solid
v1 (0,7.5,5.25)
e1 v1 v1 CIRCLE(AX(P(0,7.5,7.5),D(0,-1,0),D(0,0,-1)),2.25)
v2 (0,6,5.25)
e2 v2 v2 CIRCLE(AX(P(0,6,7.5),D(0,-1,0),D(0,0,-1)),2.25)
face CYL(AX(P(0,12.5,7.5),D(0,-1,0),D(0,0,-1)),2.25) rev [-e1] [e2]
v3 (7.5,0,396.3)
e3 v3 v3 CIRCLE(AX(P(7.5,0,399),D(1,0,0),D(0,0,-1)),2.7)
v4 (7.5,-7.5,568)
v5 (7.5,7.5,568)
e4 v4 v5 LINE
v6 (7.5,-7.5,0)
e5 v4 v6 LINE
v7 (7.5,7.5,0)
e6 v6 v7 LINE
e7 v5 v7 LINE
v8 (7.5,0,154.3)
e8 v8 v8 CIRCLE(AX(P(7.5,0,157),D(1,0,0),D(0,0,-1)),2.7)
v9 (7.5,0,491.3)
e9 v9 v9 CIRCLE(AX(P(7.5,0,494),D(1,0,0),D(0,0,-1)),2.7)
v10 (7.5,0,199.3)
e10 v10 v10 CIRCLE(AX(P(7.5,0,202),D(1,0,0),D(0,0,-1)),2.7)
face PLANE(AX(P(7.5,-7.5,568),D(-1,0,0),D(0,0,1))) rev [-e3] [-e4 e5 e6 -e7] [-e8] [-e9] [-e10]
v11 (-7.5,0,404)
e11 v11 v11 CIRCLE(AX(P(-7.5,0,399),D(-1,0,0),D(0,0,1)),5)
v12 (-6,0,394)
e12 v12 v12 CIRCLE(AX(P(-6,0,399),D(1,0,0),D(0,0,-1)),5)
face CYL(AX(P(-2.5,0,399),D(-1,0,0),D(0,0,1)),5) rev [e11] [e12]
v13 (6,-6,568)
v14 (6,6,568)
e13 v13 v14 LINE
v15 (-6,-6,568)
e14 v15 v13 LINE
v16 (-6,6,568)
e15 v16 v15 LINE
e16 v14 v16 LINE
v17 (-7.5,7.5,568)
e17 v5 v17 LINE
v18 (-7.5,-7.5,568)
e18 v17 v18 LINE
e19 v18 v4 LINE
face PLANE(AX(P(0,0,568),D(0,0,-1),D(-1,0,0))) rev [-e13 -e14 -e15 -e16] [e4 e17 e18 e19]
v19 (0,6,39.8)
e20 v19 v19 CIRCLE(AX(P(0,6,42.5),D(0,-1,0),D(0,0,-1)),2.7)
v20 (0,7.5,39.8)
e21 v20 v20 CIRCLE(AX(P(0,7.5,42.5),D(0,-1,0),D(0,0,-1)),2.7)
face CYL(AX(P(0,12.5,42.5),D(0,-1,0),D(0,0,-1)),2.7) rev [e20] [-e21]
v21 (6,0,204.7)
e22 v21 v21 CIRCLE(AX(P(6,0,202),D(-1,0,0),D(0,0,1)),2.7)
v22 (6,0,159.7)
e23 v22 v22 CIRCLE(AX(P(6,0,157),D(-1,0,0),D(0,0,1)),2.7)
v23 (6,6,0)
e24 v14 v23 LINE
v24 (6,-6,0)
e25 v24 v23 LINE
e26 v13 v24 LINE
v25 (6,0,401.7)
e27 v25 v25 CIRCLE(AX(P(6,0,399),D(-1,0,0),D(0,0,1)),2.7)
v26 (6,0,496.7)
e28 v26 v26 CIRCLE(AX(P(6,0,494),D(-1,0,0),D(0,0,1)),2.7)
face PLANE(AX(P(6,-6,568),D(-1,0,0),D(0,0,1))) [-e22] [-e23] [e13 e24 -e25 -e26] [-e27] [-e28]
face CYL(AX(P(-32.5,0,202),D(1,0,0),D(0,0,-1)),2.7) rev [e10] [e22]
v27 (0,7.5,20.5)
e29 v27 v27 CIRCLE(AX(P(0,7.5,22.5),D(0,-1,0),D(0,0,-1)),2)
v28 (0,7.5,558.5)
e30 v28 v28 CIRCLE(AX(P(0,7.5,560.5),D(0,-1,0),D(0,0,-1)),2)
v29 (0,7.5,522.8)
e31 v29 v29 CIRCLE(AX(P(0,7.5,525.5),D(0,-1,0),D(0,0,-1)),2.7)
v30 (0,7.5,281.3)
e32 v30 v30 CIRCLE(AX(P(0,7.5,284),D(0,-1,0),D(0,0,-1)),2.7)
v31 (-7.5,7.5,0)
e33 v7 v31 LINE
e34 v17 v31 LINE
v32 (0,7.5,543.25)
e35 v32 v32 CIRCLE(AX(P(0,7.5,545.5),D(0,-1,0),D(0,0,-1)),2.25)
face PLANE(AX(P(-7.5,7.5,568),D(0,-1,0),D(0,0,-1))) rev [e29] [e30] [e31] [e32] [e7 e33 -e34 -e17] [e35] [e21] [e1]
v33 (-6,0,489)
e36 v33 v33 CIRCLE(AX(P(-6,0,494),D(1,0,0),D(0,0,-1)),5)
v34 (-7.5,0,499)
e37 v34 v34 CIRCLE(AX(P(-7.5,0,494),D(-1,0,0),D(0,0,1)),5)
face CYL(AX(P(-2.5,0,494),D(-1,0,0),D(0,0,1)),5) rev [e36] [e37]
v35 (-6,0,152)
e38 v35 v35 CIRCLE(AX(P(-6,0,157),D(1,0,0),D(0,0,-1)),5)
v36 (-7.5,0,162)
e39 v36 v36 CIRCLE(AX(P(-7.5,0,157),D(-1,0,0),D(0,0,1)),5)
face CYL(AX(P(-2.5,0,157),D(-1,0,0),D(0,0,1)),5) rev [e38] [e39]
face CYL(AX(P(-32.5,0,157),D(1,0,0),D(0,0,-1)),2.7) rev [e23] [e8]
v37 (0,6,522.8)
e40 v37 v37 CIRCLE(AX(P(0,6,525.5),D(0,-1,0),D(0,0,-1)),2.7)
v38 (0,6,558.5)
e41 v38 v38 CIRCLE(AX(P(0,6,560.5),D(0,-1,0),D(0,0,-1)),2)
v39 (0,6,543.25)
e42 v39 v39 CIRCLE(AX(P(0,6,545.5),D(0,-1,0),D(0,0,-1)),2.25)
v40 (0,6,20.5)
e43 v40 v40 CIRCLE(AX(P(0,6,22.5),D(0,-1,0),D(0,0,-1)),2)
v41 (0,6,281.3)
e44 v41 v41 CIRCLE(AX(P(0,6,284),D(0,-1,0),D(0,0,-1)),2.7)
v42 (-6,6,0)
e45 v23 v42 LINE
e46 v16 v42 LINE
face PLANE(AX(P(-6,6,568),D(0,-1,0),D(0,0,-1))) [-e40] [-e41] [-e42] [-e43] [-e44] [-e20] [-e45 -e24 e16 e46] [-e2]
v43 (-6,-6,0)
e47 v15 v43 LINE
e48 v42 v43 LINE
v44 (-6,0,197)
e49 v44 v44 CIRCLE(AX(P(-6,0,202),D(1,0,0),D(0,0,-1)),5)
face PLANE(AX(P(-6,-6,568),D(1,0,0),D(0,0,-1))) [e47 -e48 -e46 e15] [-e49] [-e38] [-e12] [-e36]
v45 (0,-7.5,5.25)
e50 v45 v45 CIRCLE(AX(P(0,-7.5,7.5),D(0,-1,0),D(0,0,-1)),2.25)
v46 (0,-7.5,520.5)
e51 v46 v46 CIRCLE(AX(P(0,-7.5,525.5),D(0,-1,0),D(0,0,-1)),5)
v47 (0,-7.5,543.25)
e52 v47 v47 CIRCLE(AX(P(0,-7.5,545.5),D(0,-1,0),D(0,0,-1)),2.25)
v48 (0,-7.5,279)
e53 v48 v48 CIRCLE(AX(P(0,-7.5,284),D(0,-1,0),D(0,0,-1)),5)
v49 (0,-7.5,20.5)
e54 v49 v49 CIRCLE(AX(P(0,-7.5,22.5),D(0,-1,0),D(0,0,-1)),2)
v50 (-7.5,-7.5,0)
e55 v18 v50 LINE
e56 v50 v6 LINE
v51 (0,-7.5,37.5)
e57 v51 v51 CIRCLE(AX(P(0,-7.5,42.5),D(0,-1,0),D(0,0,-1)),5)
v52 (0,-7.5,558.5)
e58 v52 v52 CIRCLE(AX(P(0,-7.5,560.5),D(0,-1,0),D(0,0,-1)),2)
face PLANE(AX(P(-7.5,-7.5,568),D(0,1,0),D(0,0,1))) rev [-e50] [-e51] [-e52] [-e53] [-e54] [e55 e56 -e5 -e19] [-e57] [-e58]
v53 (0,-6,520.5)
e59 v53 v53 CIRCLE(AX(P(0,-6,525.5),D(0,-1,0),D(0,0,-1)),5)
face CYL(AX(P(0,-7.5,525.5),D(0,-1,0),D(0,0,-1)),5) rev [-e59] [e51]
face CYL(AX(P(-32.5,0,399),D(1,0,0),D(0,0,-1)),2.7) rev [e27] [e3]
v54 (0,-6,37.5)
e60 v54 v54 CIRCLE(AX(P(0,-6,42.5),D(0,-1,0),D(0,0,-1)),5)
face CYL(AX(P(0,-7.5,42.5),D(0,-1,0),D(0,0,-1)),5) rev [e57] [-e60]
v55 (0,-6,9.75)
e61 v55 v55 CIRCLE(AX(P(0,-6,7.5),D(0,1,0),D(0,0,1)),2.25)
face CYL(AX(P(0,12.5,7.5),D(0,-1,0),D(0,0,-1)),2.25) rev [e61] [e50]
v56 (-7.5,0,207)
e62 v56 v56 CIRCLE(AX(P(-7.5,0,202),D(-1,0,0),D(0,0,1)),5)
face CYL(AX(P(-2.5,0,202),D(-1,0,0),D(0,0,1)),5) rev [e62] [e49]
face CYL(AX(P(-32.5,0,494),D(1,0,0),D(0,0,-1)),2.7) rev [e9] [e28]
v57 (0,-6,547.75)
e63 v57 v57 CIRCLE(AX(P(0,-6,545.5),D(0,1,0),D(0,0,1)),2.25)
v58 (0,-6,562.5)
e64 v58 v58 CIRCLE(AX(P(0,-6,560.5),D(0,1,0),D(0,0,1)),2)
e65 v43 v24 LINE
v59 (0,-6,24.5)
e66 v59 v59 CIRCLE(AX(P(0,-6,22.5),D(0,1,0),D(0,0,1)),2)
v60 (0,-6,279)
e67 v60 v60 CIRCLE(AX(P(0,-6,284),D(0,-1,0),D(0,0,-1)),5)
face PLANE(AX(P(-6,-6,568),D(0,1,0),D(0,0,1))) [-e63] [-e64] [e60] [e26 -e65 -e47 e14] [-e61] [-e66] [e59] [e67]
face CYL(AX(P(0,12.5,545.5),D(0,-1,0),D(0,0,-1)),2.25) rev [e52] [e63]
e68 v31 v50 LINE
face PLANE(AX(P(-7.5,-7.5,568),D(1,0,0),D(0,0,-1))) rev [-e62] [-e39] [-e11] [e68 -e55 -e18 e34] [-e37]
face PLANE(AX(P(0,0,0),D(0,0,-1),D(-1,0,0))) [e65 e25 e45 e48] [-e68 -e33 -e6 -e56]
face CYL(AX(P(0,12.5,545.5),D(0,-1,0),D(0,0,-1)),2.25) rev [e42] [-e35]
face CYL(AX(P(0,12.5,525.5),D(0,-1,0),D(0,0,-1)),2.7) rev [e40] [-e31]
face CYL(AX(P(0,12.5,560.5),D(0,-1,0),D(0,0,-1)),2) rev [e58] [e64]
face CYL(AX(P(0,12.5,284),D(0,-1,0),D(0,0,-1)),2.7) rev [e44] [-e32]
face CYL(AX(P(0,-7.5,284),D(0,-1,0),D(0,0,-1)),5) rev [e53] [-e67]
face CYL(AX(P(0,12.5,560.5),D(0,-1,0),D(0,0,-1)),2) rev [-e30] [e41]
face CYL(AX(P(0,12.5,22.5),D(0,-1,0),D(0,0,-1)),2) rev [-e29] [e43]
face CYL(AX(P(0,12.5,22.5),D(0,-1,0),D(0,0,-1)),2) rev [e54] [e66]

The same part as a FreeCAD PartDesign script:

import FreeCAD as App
import Part
import Sketcher

V = App.Vector

doc = App.newDocument("Part")
body = doc.addObject("PartDesign::Body", "Body")

# Sketch on XY plane
sketch1 = body.newObject("Sketcher::SketchObject", "Sketch")
sketch1.AttachmentSupport = (doc.getObject("XY_Plane"), [""])
sketch1.MapMode = "FlatFace"
sketch1.addGeometry([
    Part.LineSegment(V(-8, 8, 0), V(-8, -8, 0)),  # 0
    Part.LineSegment(V(-8, -8, 0), V(8, -8, 0)),  # 1
    Part.LineSegment(V(8, -8, 0), V(8, 8, 0)),  # 2
    Part.LineSegment(V(8, 8, 0), V(-8, 8, 0)),  # 3
    Part.LineSegment(V(6, -6, 0), V(-6, -6, 0)),  # 4
    Part.LineSegment(V(-6, -6, 0), V(-6, 6, 0)),  # 5
    Part.LineSegment(V(-6, 6, 0), V(6, 6, 0)),  # 6
    Part.LineSegment(V(6, 6, 0), V(6, -6, 0)),  # 7
], False)
sketch1.addConstraint([
    Sketcher.Constraint("Coincident", 0, 2, 1, 1),
    Sketcher.Constraint("Coincident", 1, 2, 2, 1),
    Sketcher.Constraint("Coincident", 2, 2, 3, 1),
    Sketcher.Constraint("Coincident", 3, 2, 0, 1),
    Sketcher.Constraint("Coincident", 4, 2, 5, 1),
    Sketcher.Constraint("Coincident", 5, 2, 6, 1),
    Sketcher.Constraint("Coincident", 6, 2, 7, 1),
    Sketcher.Constraint("Coincident", 7, 2, 4, 1),
    Sketcher.Constraint("Vertical", 0),
    Sketcher.Constraint("Horizontal", 1),
    Sketcher.Constraint("Vertical", 2),
    Sketcher.Constraint("Horizontal", 3),
    Sketcher.Constraint("Horizontal", 4),
    Sketcher.Constraint("Vertical", 5),
    Sketcher.Constraint("Horizontal", 6),
    Sketcher.Constraint("Vertical", 7),
    Sketcher.Constraint("Symmetric", 0, 2, 2, 2, -1, 1),
    Sketcher.Constraint("Symmetric", 4, 2, 6, 2, -1, 1),
    Sketcher.Constraint("Equal", 3, 0),
    Sketcher.Constraint("Equal", 6, 5),
    Sketcher.Constraint("DistanceX", 1, 1, 1, 2, 15.0),
    Sketcher.Constraint("DistanceX", 4, 2, 4, 1, 12.0),
])
pad1 = body.newObject("PartDesign::Pad", "Pad")
pad1.Profile = sketch1
pad1.Length = 568

# Sketch on XZ plane
sketch2 = body.newObject("Sketcher::SketchObject", "Sketch001")
sketch2.AttachmentSupport = (doc.getObject("XZ_Plane"), [""])
sketch2.MapMode = "FlatFace"
sketch2.AttachmentOffset = App.Placement(V(0, 0, 7.5), App.Rotation())
sketch2.addGeometry([
    Part.Circle(V(0, 22.5, 0), V(0, 0, 1), 2),  # 0
    Part.Circle(V(0, 7.5, 0), V(0, 0, 1), 2.2),  # 1
    Part.Circle(V(0, 560.5, 0), V(0, 0, 1), 2),  # 2
    Part.Circle(V(0, 545.5, 0), V(0, 0, 1), 2.2),  # 3
    Part.Circle(V(0, 42.5, 0), V(0, 0, 1), 2.7),  # 4
    Part.Circle(V(0, 284, 0), V(0, 0, 1), 2.7),  # 5
    Part.Circle(V(0, 525.5, 0), V(0, 0, 1), 2.7),  # 6
], False)
sketch2.addConstraint([
    Sketcher.Constraint("Equal", 0, 2),
    Sketcher.Constraint("Equal", 1, 3),
    Sketcher.Constraint("Equal", 4, 5),
    Sketcher.Constraint("Equal", 5, 6),
    Sketcher.Constraint("PointOnObject", 0, 3, -2),
    Sketcher.Constraint("PointOnObject", 1, 3, -2),
    Sketcher.Constraint("PointOnObject", 2, 3, -2),
    Sketcher.Constraint("PointOnObject", 3, 3, -2),
    Sketcher.Constraint("PointOnObject", 4, 3, -2),
    Sketcher.Constraint("PointOnObject", 5, 3, -2),
    Sketcher.Constraint("PointOnObject", 6, 3, -2),
    Sketcher.Constraint("Diameter", 0, 4.0),
    Sketcher.Constraint("Diameter", 1, 4.5),
    Sketcher.Constraint("Diameter", 4, 5.4),
    Sketcher.Constraint("DistanceY", -1, 1, 5, 3, 284.0),
    Sketcher.Constraint("DistanceY", 1, 3, 0, 3, 15.0),
    Sketcher.Constraint("DistanceY", 0, 3, 2, 3, 538.0),
    Sketcher.Constraint("DistanceY", 3, 3, 2, 3, 15.0),
    Sketcher.Constraint("DistanceY", 0, 3, 4, 3, 20.0),
    Sketcher.Constraint("DistanceY", 6, 3, 3, 3, 20.0),
    Sketcher.Constraint("DistanceY", -1, 1, 0, 3, 22.5),
])
pocket1 = body.newObject("PartDesign::Pocket", "Pocket")
pocket1.Profile = sketch2
pocket1.Length = 20

# Sketch on YZ plane
sketch3 = body.newObject("Sketcher::SketchObject", "Sketch002")
sketch3.AttachmentSupport = (doc.getObject("YZ_Plane"), [""])
sketch3.MapMode = "FlatFace"
sketch3.AttachmentOffset = App.Placement(V(0, 0, 7.5), App.Rotation())
sketch3.addGeometry([
    Part.Circle(V(0, 494, 0), V(0, 0, 1), 2.7),
    Part.Circle(V(0, 399, 0), V(0, 0, 1), 2.7),
    Part.Circle(V(0, 202, 0), V(0, 0, 1), 2.7),
    Part.Circle(V(0, 157, 0), V(0, 0, 1), 2.7),
], False)
sketch3.addConstraint([
    Sketcher.Constraint("Equal", 0, 1),
    Sketcher.Constraint("Equal", 1, 2),
    Sketcher.Constraint("Equal", 2, 3),
    Sketcher.Constraint("PointOnObject", 0, 3, -2),
    Sketcher.Constraint("PointOnObject", 1, 3, -2),
    Sketcher.Constraint("PointOnObject", 2, 3, -2),
    Sketcher.Constraint("PointOnObject", 3, 3, -2),
    Sketcher.Constraint("Diameter", 0, 5.4),
    Sketcher.Constraint("DistanceY", -1, 1, 0, 3, 494.0),
    Sketcher.Constraint("DistanceY", -1, 1, 1, 3, 399.0),
    Sketcher.Constraint("DistanceY", -1, 1, 2, 3, 202.0),
    Sketcher.Constraint("DistanceY", -1, 1, 3, 3, 157.0),
])
pocket2 = body.newObject("PartDesign::Pocket", "Pocket001")
pocket2.Profile = sketch3
pocket2.Length = 40

# Sketch on YZ plane
sketch4 = body.newObject("Sketcher::SketchObject", "Sketch003")
sketch4.AttachmentSupport = (doc.getObject("YZ_Plane"), [""])
sketch4.MapMode = "FlatFace"
sketch4.AttachmentOffset = App.Placement(V(0, 0, -7.5), App.Rotation())
sketch4.addGeometry([
    Part.Circle(V(0, 157, 0), V(0, 0, 1), 5),
    Part.Circle(V(0, 202, 0), V(0, 0, 1), 5),
    Part.Circle(V(0, 399, 0), V(0, 0, 1), 5),
    Part.Circle(V(0, 494, 0), V(0, 0, 1), 5),
], False)
sketch4.addConstraint([
    Sketcher.Constraint("Equal", 0, 1),
    Sketcher.Constraint("Equal", 1, 2),
    Sketcher.Constraint("Equal", 2, 3),
    Sketcher.Constraint("PointOnObject", 0, 3, -2),
    Sketcher.Constraint("PointOnObject", 1, 3, -2),
    Sketcher.Constraint("PointOnObject", 2, 3, -2),
    Sketcher.Constraint("PointOnObject", 3, 3, -2),
    Sketcher.Constraint("Diameter", 0, 10.0),
    Sketcher.Constraint("DistanceY", -1, 1, 0, 3, 157.0),
    Sketcher.Constraint("DistanceY", -1, 1, 1, 3, 202.0),
    Sketcher.Constraint("DistanceY", -1, 1, 2, 3, 399.0),
    Sketcher.Constraint("DistanceY", -1, 1, 3, 3, 494.0),
])
pocket3 = body.newObject("PartDesign::Pocket", "Pocket002")
pocket3.Profile = sketch4
pocket3.Length = 5
pocket3.Reversed = True

# Sketch on XZ plane
sketch5 = body.newObject("Sketcher::SketchObject", "Sketch004")
sketch5.AttachmentSupport = (doc.getObject("XZ_Plane"), [""])
sketch5.MapMode = "FlatFace"
sketch5.AttachmentOffset = App.Placement(V(0, 0, 7.5), App.Rotation())
sketch5.addGeometry([
    Part.Circle(V(0, 42, 0), V(0, 0, 1), 5),
    Part.Circle(V(0, 284, 0), V(0, 0, 1), 5),
    Part.Circle(V(0, 526, 0), V(0, 0, 1), 5),
], False)
sketch5.addConstraint([
    Sketcher.Constraint("Equal", 0, 1),
    Sketcher.Constraint("Equal", 1, 2),
    Sketcher.Constraint("PointOnObject", 0, 3, -2),
    Sketcher.Constraint("PointOnObject", 1, 3, -2),
    Sketcher.Constraint("PointOnObject", 2, 3, -2),
    Sketcher.Constraint("Diameter", 0, 10.0),
    Sketcher.Constraint("DistanceY", -1, 1, 1, 3, 284.0),
    Sketcher.Constraint("DistanceY", 0, 3, 2, 3, 483.0),
    Sketcher.Constraint("DistanceY", -1, 1, 0, 3, 42.5),
])
doc.recompute()
hole = body.newObject("PartDesign::Hole", "Hole")
hole.Profile = sketch5
hole.ThreadType = "None"
hole.Diameter = 10
hole.DepthType = "Dimension"
hole.Depth = 1.5
hole.DrillPoint = "Flat"

doc.recompute()
